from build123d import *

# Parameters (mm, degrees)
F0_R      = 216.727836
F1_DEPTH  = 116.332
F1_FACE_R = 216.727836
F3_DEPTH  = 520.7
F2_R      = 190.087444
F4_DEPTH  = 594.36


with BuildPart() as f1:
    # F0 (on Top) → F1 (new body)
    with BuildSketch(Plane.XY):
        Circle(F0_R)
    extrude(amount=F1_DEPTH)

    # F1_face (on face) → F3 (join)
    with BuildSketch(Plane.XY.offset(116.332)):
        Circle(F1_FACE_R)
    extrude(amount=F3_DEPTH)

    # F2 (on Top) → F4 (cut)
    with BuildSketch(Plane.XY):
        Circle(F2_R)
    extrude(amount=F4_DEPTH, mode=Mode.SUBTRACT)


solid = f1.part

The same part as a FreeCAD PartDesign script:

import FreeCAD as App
import Part
import Sketcher

doc = App.newDocument("Part")
params = doc.addObject("Spreadsheet::Sheet", "Params")
for row, (alias, value) in enumerate([
    ("pad1_length", "4.58 in"),
    ("pad2_length", "20.5 in"),
    ("pocket1_length", "23.4 in"),
], start=1):
    params.set(f"A{row}", alias)
    params.set(f"B{row}", "=" + value)
    params.setAlias(f"B{row}", alias)

body = doc.addObject("PartDesign::Body", "Body")

sketch1 = doc.addObject("Sketcher::SketchObject", "Sketch")
body.addObject(sketch1)
sketch1.AttachmentSupport = (doc.XY_Plane, [""])
sketch1.MapMode = "FlatFace"
sketch1.addGeometry(Part.Circle(App.Vector(0, 0, 0), App.Vector(0, 0, 1), 217), False)
sketch1.addConstraint(Sketcher.Constraint("Coincident", 0, 3, -1, 1))
sketch1.addConstraint(Sketcher.Constraint("Diameter", 0, 433.455672))
pad1 = doc.addObject("PartDesign::Pad", "Pad")
body.addObject(pad1)
pad1.Profile = sketch1
pad1.setExpression("Length", "Params.pad1_length")

sketch2 = doc.addObject("Sketcher::SketchObject", "Sketch001")
body.addObject(sketch2)
sketch2.AttachmentSupport = (doc.XY_Plane, [""])
sketch2.MapMode = "FlatFace"
sketch2.AttachmentOffset = App.Placement(App.Vector(0, 0, 4.58 * 25.4), App.Rotation())
sketch2.addGeometry(Part.Circle(App.Vector(0, 0, 0), App.Vector(0, 0, 1), 217), False)
sketch2.addConstraint(Sketcher.Constraint("Coincident", 0, 3, -1, 1))
sketch2.addConstraint(Sketcher.Constraint("Diameter", 0, 433.455672))
pad2 = doc.addObject("PartDesign::Pad", "Pad001")
body.addObject(pad2)
pad2.Profile = sketch2
pad2.setExpression("Length", "Params.pad2_length")

sketch3 = doc.addObject("Sketcher::SketchObject", "Sketch002")
body.addObject(sketch3)
sketch3.AttachmentSupport = (doc.XY_Plane, [""])
sketch3.MapMode = "FlatFace"
sketch3.addGeometry(Part.Circle(App.Vector(0, 0, 0), App.Vector(0, 0, 1), 190), False)
sketch3.addConstraint(Sketcher.Constraint("Coincident", 0, 3, -1, 1))
sketch3.addConstraint(Sketcher.Constraint("Diameter", 0, 380.174888))
pocket1 = doc.addObject("PartDesign::Pocket", "Pocket")
body.addObject(pocket1)
pocket1.Profile = sketch3
pocket1.setExpression("Length", "Params.pocket1_length")
pocket1.Reversed = True

doc.recompute()
